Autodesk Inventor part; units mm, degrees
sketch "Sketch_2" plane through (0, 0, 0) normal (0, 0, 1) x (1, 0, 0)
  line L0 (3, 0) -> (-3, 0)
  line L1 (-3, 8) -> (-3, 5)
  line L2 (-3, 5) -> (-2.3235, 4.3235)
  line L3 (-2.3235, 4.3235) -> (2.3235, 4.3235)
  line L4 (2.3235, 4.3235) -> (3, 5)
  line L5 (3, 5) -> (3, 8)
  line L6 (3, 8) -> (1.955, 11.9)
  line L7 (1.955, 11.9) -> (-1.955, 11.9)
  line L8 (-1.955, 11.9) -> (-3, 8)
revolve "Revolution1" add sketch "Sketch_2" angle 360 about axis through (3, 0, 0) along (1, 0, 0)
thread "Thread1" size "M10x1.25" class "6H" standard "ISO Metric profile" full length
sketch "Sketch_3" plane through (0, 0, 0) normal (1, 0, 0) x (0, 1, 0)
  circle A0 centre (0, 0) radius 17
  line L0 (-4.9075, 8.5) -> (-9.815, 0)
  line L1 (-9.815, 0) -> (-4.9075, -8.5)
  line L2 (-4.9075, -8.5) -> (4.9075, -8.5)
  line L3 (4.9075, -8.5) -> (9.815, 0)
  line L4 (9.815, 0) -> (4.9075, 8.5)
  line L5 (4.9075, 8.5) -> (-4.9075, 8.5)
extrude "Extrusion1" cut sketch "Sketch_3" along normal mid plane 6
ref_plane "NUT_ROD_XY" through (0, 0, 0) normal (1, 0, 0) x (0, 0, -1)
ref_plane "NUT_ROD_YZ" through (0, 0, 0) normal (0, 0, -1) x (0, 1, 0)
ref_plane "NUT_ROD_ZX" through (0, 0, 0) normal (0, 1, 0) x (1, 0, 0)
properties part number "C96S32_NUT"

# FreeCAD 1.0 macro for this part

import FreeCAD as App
import Part
import Sketcher
from FreeCAD import Vector
Q = App.Units.Quantity

doc = App.newDocument("Part")
body = doc.addObject("PartDesign::Body", "Body")

# Sketch on XY plane
sketch1 = body.newObject("Sketcher::SketchObject", "Sketch")
sketch1.AttachmentSupport = (doc.getObject("XY_Plane"), [""])
sketch1.MapMode = "FlatFace"
sketch1.addGeometry([
    Part.LineSegment(Vector(-2, 11.9, 0), Vector(-3, 8, 0)),  # 0
    Part.LineSegment(Vector(-3, 8, 0), Vector(-3, 5, 0)),  # 1
    Part.LineSegment(Vector(-3, 5, 0), Vector(-2.3, 4.3, 0)),  # 2
    Part.LineSegment(Vector(-2.3, 4.3, 0), Vector(2.3, 4.3, 0)),  # 3
    Part.LineSegment(Vector(2.3, 4.3, 0), Vector(3, 5, 0)),  # 4
    Part.LineSegment(Vector(3, 5, 0), Vector(3, 8, 0)),  # 5
    Part.LineSegment(Vector(3, 8, 0), Vector(2, 11.9, 0)),  # 6
    Part.LineSegment(Vector(2, 11.9, 0), Vector(-2, 11.9, 0)),  # 7
], False)
sketch1.addConstraint([
    Sketcher.Constraint("Coincident", 0, 2, 1, 1),
    Sketcher.Constraint("Coincident", 1, 2, 2, 1),
    Sketcher.Constraint("Coincident", 2, 2, 3, 1),
    Sketcher.Constraint("Coincident", 3, 2, 4, 1),
    Sketcher.Constraint("Coincident", 4, 2, 5, 1),
    Sketcher.Constraint("Coincident", 5, 2, 6, 1),
    Sketcher.Constraint("Coincident", 6, 2, 7, 1),
    Sketcher.Constraint("Coincident", 7, 2, 0, 1),
    Sketcher.Constraint("Vertical", 1),
    Sketcher.Constraint("Horizontal", 3),
    Sketcher.Constraint("Vertical", 5),
    Sketcher.Constraint("Horizontal", 7),
    Sketcher.Constraint("Symmetric", 1, 2, 4, 2, -2),
    Sketcher.Constraint("Perpendicular", 2, 4),
    Sketcher.Constraint("Horizontal", 0, 2, 5, 2),
    Sketcher.Constraint("Equal", 2, 4),
    Sketcher.Constraint("Equal", 0, 6),
    Sketcher.Constraint("DistanceY", 1, 2, 1, 1, Q("3 mm")),
    Sketcher.Constraint("Angle", 0, Q("-105 deg")),
    Sketcher.Constraint("DistanceX", 0, 2, -1, 1, Q("3 mm")),
    Sketcher.Constraint("DistanceY", -1, 1, 0, 2, Q("8 mm")),
    Sketcher.Constraint("DistanceX", 7, 2, 7, 1, Q("3.91 mm")),
    Sketcher.Constraint("DistanceX", 3, 1, 3, 2, Q("4.647 mm")),
])
revolution = body.newObject("PartDesign::Revolution", "Revolution")
revolution.Profile = sketch1
revolution.ReferenceAxis = (sketch1, ["H_Axis"])
revolution.Angle = 360

# Sketch on YZ plane
sketch2 = body.newObject("Sketcher::SketchObject", "Sketch001")
sketch2.AttachmentSupport = (doc.getObject("YZ_Plane"), [""])
sketch2.MapMode = "FlatFace"
sketch2.addGeometry([
    Part.Circle(Vector(0, 0, 0), Vector(0, 0, 1), 17),  # 0
    Part.LineSegment(Vector(-10, 0, 0), Vector(-5, 8, 0)),  # 1
    Part.LineSegment(Vector(-5, 8, 0), Vector(5, 8, 0)),  # 2
    Part.LineSegment(Vector(5, 8, 0), Vector(10, 0, 0)),  # 3
    Part.LineSegment(Vector(10, 0, 0), Vector(5, -8, 0)),  # 4
    Part.LineSegment(Vector(5, -8, 0), Vector(-5, -8, 0)),  # 5
    Part.LineSegment(Vector(-5, -8, 0), Vector(-10, 0, 0)),  # 6
], False)
sketch2.addConstraint([
    Sketcher.Constraint("Coincident", 1, 2, 2, 1),
    Sketcher.Constraint("Coincident", 2, 2, 3, 1),
    Sketcher.Constraint("Coincident", 3, 2, 4, 1),
    Sketcher.Constraint("Coincident", 4, 2, 5, 1),
    Sketcher.Constraint("Coincident", 5, 2, 6, 1),
    Sketcher.Constraint("Coincident", 6, 2, 1, 1),
    Sketcher.Constraint("Horizontal", 2),
    Sketcher.Constraint("Horizontal", 5),
    Sketcher.Constraint("Coincident", 0, 3, -1, 1),
    Sketcher.Constraint("Symmetric", 1, 2, 4, 2, -1, 1),
    Sketcher.Constraint("Symmetric", 3, 2, 6, 2, -1, 1),
    Sketcher.Constraint("PointOnObject", 3, 2, -1),
    Sketcher.Constraint("Parallel", 3, 6),
    Sketcher.Constraint("Vertical", 2, 2, 4, 2),
    Sketcher.Constraint("Diameter", 0, Q("34 mm")),
    Sketcher.Constraint("Angle", 1, Q("60 deg")),
    Sketcher.Constraint("DistanceY", 4, 2, 2, 2, Q("17 mm")),
    Sketcher.Constraint("DistanceX", 2, 1, 2, 2, Q("9.815 mm")),
])
pocket1 = body.newObject("PartDesign::Pocket", "Pocket")
pocket1.Profile = sketch2
pocket1.Length = 6
pocket1.Midplane = True

doc.recompute()
